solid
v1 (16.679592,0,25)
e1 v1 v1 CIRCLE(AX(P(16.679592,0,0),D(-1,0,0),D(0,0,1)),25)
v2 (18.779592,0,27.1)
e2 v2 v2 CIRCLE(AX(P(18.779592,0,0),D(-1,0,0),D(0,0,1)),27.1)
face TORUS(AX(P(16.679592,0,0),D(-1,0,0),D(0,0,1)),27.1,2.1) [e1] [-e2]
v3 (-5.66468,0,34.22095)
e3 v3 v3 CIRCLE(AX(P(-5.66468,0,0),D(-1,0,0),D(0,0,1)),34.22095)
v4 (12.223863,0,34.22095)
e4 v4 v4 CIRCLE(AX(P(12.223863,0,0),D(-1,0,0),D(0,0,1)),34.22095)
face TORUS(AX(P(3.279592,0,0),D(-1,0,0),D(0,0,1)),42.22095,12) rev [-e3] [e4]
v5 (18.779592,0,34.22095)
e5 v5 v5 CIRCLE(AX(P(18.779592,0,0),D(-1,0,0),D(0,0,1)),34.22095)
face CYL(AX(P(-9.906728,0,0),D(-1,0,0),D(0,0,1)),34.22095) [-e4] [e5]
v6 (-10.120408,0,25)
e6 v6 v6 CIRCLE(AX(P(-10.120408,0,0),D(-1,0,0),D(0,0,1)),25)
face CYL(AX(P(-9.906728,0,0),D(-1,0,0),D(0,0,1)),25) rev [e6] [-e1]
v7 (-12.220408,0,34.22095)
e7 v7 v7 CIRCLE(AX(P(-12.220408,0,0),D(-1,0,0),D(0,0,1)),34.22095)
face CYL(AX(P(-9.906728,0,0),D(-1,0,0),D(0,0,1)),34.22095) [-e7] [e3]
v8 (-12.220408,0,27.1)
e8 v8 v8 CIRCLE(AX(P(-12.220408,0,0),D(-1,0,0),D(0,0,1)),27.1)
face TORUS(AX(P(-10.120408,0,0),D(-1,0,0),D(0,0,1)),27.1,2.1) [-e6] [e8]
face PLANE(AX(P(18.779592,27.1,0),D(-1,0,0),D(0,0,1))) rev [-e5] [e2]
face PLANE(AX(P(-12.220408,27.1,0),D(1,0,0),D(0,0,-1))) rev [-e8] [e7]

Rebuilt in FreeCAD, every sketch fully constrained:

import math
import FreeCAD as App
import Part
import Sketcher

V = App.Vector
Q = App.Units.Quantity

doc = App.newDocument("Part")
body = doc.addObject("PartDesign::Body", "Body")

# Sketch on XY plane
sketch1 = body.newObject("Sketcher::SketchObject", "Sketch")
sketch1.AttachmentSupport = (doc.getObject("XY_Plane"), [""])
sketch1.MapMode = "FlatFace"
sketch1.addGeometry(Part.LineSegment(V(-10.1, 25, 0), V(16.7, 25, 0)), False)
sketch1.addGeometry(Part.ArcOfCircle(Part.Circle(V(16.7, 27.1, 0), V(0, 0, 1), 2.1), math.radians(-90), math.radians(0)), False)
sketch1.addGeometry(Part.LineSegment(V(18.8, 27.1, 0), V(18.8, 34.2, 0)), False)
sketch1.addGeometry(Part.LineSegment(V(18.8, 34.2, 0), V(12.2, 34.2, 0)), False)
sketch1.addGeometry(Part.ArcOfCircle(Part.Circle(V(3.3, 42.2, 0), V(0, 0, 1), 12), math.radians(-138), math.radians(-42)), False)
sketch1.addGeometry(Part.LineSegment(V(-5.7, 34.2, 0), V(-12.2, 34.2, 0)), False)
sketch1.addGeometry(Part.LineSegment(V(-12.2, 34.2, 0), V(-12.2, 27.1, 0)), False)
sketch1.addGeometry(Part.ArcOfCircle(Part.Circle(V(-10.1, 27.1, 0), V(0, 0, 1), 2.1), math.radians(-180), math.radians(-90)), False)
sketch1.addConstraint(Sketcher.Constraint("Tangent", 0, 2, 1, 1))
sketch1.addConstraint(Sketcher.Constraint("Tangent", 1, 2, 2, 1))
sketch1.addConstraint(Sketcher.Constraint("Coincident", 2, 2, 3, 1))
sketch1.addConstraint(Sketcher.Constraint("Coincident", 3, 2, 4, 2))
sketch1.addConstraint(Sketcher.Constraint("Coincident", 4, 1, 5, 1))
sketch1.addConstraint(Sketcher.Constraint("Coincident", 5, 2, 6, 1))
sketch1.addConstraint(Sketcher.Constraint("Tangent", 6, 2, 7, 1))
sketch1.addConstraint(Sketcher.Constraint("Tangent", 7, 2, 0, 1))
sketch1.addConstraint(Sketcher.Constraint("Horizontal", 0))
sketch1.addConstraint(Sketcher.Constraint("Vertical", 2))
sketch1.addConstraint(Sketcher.Constraint("Horizontal", 3))
sketch1.addConstraint(Sketcher.Constraint("Horizontal", 5))
sketch1.addConstraint(Sketcher.Constraint("Vertical", 6))
sketch1.addConstraint(Sketcher.Constraint("Equal", 1, 7))
sketch1.addConstraint(Sketcher.Constraint("Horizontal", 3, 2, 4, 1))
sketch1.addConstraint(Sketcher.Constraint("Equal", 3, 5))
sketch1.addConstraint(Sketcher.Constraint("Radius", 4, Q("12 mm")))
sketch1.addConstraint(Sketcher.Constraint("Radius", 1, Q("2.1 mm")))
sketch1.addConstraint(Sketcher.Constraint("DistanceX", 0, 1, 0, 2, Q("26.8 mm")))
sketch1.addConstraint(Sketcher.Constraint("DistanceY", -1, 1, 0, 2, Q("25 mm")))
sketch1.addConstraint(Sketcher.Constraint("DistanceY", 2, 2, 4, 3, Q("8 mm")))
sketch1.addConstraint(Sketcher.Constraint("DistanceY", 2, 1, 2, 2, Q("7.12095 mm")))
sketch1.addConstraint(Sketcher.Constraint("DistanceX", -1, 1, 1, 3, Q("16.679592 mm")))
revolution = body.newObject("PartDesign::Revolution", "Revolution")
revolution.Profile = sketch1
revolution.ReferenceAxis = (sketch1, ["H_Axis"])
revolution.Angle = 360

doc.recompute()
